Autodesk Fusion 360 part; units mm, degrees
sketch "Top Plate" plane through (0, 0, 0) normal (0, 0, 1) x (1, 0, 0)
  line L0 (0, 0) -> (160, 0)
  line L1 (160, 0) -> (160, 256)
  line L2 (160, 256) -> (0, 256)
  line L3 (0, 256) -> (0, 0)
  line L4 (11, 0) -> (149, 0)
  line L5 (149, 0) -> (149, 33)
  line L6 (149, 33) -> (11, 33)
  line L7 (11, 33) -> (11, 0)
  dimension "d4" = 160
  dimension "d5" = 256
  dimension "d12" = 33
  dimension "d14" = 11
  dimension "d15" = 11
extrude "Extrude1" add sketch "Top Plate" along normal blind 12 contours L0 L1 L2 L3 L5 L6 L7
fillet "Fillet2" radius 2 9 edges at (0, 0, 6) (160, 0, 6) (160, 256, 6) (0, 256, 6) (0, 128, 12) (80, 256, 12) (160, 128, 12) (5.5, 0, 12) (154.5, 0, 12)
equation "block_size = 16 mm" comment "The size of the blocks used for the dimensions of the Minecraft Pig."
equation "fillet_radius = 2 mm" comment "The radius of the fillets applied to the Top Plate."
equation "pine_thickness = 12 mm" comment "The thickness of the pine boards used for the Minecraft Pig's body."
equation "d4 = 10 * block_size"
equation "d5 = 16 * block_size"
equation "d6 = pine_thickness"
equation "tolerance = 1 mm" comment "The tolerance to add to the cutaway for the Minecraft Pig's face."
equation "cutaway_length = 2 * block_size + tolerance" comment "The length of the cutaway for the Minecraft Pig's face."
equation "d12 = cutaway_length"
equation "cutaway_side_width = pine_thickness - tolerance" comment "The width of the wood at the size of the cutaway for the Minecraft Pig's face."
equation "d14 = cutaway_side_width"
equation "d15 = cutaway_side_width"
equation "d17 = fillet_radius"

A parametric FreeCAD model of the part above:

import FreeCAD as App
import Part
import Sketcher
Q = App.Units.Quantity


def edges_at(feature, points):
    """Names of the edges that pass closest to the given points."""
    edges = feature.Shape.Edges
    near = lambda p: min(range(len(edges)), key=lambda i: edges[i].distToShape(Part.Vertex(*p))[0])
    return sorted({f"Edge{near(p) + 1}" for p in points})

doc = App.newDocument("Part")
body = doc.addObject("PartDesign::Body", "Body")

sketch1 = doc.addObject("Sketcher::SketchObject", "Sketch")
body.addObject(sketch1)
sketch1.AttachmentSupport = (doc.XY_Plane, [""])
sketch1.MapMode = "FlatFace"
sketch1.addGeometry([
    Part.LineSegment(App.Vector(0, 256, 0), App.Vector(0, 0, 0)),
    Part.LineSegment(App.Vector(0, 0, 0), App.Vector(11, 0, 0)),
    Part.LineSegment(App.Vector(11, 0, 0), App.Vector(11, 33, 0)),
    Part.LineSegment(App.Vector(11, 33, 0), App.Vector(149, 33, 0)),
    Part.LineSegment(App.Vector(149, 33, 0), App.Vector(149, 0, 0)),
    Part.LineSegment(App.Vector(149, 0, 0), App.Vector(160, 0, 0)),
    Part.LineSegment(App.Vector(160, 0, 0), App.Vector(160, 256, 0)),
    Part.LineSegment(App.Vector(160, 256, 0), App.Vector(0, 256, 0)),
], False)
sketch1.addConstraint([
    Sketcher.Constraint("Coincident", 0, 2, 1, 1),
    Sketcher.Constraint("Coincident", 1, 2, 2, 1),
    Sketcher.Constraint("Coincident", 2, 2, 3, 1),
    Sketcher.Constraint("Coincident", 3, 2, 4, 1),
    Sketcher.Constraint("Coincident", 4, 2, 5, 1),
    Sketcher.Constraint("Coincident", 5, 2, 6, 1),
    Sketcher.Constraint("Coincident", 6, 2, 7, 1),
    Sketcher.Constraint("Coincident", 7, 2, 0, 1),
    Sketcher.Constraint("Vertical", 0),
    Sketcher.Constraint("Horizontal", 1),
    Sketcher.Constraint("Vertical", 2),
    Sketcher.Constraint("Horizontal", 3),
    Sketcher.Constraint("Vertical", 4),
    Sketcher.Constraint("Horizontal", 5),
    Sketcher.Constraint("Vertical", 6),
    Sketcher.Constraint("Horizontal", 7),
    Sketcher.Constraint("Coincident", 0, 2, -1, 1),
    Sketcher.Constraint("PointOnObject", 4, 2, -1),
    Sketcher.Constraint("Equal", 1, 5),
    Sketcher.Constraint("DistanceX", 1, 1, 1, 2, Q("11 mm")),
    Sketcher.Constraint("DistanceX", 7, 2, 7, 1, Q("160 mm")),
    Sketcher.Constraint("DistanceY", 0, 2, 0, 1, Q("256 mm")),
    Sketcher.Constraint("DistanceY", 2, 1, 2, 2, Q("33 mm")),
])
pad1 = doc.addObject("PartDesign::Pad", "Pad")
body.addObject(pad1)
pad1.Profile = sketch1
pad1.Length = 12
doc.recompute()

fillet = doc.addObject("PartDesign::Fillet", "Fillet")
body.addObject(fillet)
fillet.Base = (pad1, edges_at(pad1, [
    (0, 0, 6),
    (160, 0, 6),
    (160, 256, 6),
    (0, 256, 6),
    (0, 128, 12),
    (80, 256, 12),
    (160, 128, 12),
    (5.5, 0, 12),
    (154.5, 0, 12),
]))
fillet.Radius = 2

doc.recompute()
